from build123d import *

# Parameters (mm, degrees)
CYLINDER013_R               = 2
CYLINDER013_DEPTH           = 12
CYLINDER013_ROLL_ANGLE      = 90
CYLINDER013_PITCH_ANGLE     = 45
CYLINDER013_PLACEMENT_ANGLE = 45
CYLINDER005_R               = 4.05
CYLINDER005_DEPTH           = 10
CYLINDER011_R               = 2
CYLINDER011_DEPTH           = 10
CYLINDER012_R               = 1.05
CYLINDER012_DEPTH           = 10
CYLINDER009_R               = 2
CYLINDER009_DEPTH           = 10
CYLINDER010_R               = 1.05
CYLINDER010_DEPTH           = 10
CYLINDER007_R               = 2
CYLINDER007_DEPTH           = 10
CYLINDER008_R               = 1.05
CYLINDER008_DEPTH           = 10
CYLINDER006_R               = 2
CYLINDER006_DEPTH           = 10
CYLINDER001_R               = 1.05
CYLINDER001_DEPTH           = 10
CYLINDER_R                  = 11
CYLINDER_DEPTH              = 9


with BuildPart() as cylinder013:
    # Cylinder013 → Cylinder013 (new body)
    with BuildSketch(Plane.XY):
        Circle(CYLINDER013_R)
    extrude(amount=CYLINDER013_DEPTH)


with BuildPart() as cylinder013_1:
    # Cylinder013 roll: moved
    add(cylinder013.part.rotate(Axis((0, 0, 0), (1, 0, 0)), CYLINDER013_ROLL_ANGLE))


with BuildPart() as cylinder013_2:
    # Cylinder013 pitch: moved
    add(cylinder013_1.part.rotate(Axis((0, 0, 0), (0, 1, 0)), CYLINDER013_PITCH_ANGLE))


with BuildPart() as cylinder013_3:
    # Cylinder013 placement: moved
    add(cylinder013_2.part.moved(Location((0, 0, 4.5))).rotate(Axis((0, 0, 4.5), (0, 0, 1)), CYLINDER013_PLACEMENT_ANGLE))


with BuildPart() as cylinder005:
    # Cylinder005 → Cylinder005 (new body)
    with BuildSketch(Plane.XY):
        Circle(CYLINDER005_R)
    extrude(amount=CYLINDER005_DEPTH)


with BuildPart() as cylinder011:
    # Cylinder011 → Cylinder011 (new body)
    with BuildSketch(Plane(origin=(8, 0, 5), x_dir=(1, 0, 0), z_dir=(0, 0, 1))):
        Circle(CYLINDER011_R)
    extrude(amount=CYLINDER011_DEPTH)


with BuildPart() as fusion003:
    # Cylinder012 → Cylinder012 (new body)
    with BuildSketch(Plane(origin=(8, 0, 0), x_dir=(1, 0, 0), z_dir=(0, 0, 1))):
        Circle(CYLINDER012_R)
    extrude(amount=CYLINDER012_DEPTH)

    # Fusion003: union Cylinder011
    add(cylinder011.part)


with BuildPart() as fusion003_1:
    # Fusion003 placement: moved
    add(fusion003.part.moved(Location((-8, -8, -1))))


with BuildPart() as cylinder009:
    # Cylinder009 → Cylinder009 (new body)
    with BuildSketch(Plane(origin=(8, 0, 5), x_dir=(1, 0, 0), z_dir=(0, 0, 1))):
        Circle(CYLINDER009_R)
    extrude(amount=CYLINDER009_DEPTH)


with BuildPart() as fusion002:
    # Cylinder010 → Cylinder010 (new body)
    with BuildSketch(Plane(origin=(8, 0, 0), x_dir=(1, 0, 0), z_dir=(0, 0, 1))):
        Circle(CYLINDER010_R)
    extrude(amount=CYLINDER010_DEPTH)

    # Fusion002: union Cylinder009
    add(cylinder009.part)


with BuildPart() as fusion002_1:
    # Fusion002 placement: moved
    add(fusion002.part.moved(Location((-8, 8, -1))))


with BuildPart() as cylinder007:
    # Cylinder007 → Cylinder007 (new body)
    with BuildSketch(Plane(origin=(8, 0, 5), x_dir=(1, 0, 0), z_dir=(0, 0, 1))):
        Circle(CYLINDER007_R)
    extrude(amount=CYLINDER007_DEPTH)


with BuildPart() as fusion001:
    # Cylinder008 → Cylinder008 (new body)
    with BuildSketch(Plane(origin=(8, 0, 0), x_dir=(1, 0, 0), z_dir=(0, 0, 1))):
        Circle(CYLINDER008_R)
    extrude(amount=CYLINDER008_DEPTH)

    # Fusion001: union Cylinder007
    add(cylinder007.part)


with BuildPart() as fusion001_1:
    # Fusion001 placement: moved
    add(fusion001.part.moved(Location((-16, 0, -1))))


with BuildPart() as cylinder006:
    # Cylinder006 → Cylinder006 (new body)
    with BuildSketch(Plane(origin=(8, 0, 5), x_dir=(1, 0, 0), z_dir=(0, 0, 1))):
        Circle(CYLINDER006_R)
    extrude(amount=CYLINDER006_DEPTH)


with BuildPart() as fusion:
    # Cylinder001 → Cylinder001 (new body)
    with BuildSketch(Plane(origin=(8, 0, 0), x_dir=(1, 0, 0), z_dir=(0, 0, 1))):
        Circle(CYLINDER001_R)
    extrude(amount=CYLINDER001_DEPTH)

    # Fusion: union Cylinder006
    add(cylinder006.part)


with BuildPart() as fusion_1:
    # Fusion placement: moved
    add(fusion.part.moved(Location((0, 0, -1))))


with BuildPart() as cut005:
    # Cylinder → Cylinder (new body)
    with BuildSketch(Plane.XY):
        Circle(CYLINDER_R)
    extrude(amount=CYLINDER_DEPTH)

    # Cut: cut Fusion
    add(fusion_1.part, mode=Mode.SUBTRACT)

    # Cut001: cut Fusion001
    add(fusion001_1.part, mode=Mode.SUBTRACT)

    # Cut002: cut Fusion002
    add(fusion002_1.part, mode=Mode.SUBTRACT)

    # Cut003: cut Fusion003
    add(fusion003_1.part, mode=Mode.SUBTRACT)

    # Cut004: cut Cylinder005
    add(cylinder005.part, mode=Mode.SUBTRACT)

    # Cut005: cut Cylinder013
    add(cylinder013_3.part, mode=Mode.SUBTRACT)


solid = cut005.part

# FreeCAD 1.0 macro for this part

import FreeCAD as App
import Part
import Sketcher

V = App.Vector

doc = App.newDocument("Part")
body = doc.addObject("PartDesign::Body", "Body")

# Sketch on XY plane
sketch1 = body.newObject("Sketcher::SketchObject", "Sketch")
sketch1.AttachmentSupport = (doc.getObject("XY_Plane"), [""])
sketch1.MapMode = "FlatFace"
sketch1.addGeometry(Part.Circle(V(0, 0, 0), V(0, 0, 1), 2), False)
sketch1.addConstraint(Sketcher.Constraint("Coincident", 0, 3, -1, 1))
sketch1.addConstraint(Sketcher.Constraint("Diameter", 0, 4.0))
pad1 = body.newObject("PartDesign::Pad", "Pad")
pad1.Profile = sketch1
pad1.Length = 12
body2 = doc.addObject("PartDesign::Body", "Body001")
doc.recompute()

body.Placement = App.Placement(V(0, 0, 0), App.Rotation(V(1, 0, 0), 90))
boolean = body2.newObject("PartDesign::Boolean", "Boolean")
boolean.Type = "Fuse"
boolean.addObjects([body])
body3 = doc.addObject("PartDesign::Body", "Body002")
doc.recompute()

body2.Placement = App.Placement(V(0, 0, 0), App.Rotation(V(0, 1, 0), 45))
boolean2 = body3.newObject("PartDesign::Boolean", "Boolean001")
boolean2.Type = "Fuse"
boolean2.addObjects([body2])
body4 = doc.addObject("PartDesign::Body", "Body003")
doc.recompute()

body3.Placement = App.Placement(V(0, 0, 4.5), App.Rotation(V(0, 0, 1), 45))
boolean3 = body4.newObject("PartDesign::Boolean", "Boolean002")
boolean3.Type = "Fuse"
boolean3.addObjects([body3])
body5 = doc.addObject("PartDesign::Body", "Body004")

# Sketch on XY plane
sketch2 = body5.newObject("Sketcher::SketchObject", "Sketch001")
sketch2.AttachmentSupport = (doc.getObject("XY_Plane004"), [""])
sketch2.MapMode = "FlatFace"
sketch2.addGeometry(Part.Circle(V(0, 0, 0), V(0, 0, 1), 4), False)
sketch2.addConstraint(Sketcher.Constraint("Coincident", 0, 3, -1, 1))
sketch2.addConstraint(Sketcher.Constraint("Diameter", 0, 8.1))
pad2 = body5.newObject("PartDesign::Pad", "Pad001")
pad2.Profile = sketch2
pad2.Length = 10
body6 = doc.addObject("PartDesign::Body", "Body005")

# Sketch on XY plane
sketch3 = body6.newObject("Sketcher::SketchObject", "Sketch002")
sketch3.AttachmentSupport = (doc.getObject("XY_Plane005"), [""])
sketch3.MapMode = "FlatFace"
sketch3.AttachmentOffset = App.Placement(V(0, 0, 5), App.Rotation())
sketch3.addGeometry(Part.Circle(V(8, 0, 0), V(0, 0, 1), 2), False)
sketch3.addConstraint(Sketcher.Constraint("PointOnObject", 0, 3, -1))
sketch3.addConstraint(Sketcher.Constraint("Diameter", 0, 4.0))
sketch3.addConstraint(Sketcher.Constraint("DistanceX", -1, 1, 0, 3, 8.0))
pad3 = body6.newObject("PartDesign::Pad", "Pad002")
pad3.Profile = sketch3
pad3.Length = 10
body7 = doc.addObject("PartDesign::Body", "Body006")

# Sketch on XY plane
sketch4 = body7.newObject("Sketcher::SketchObject", "Sketch003")
sketch4.AttachmentSupport = (doc.getObject("XY_Plane006"), [""])
sketch4.MapMode = "FlatFace"
sketch4.addGeometry(Part.Circle(V(8, 0, 0), V(0, 0, 1), 1.1), False)
sketch4.addConstraint(Sketcher.Constraint("PointOnObject", 0, 3, -1))
sketch4.addConstraint(Sketcher.Constraint("Diameter", 0, 2.1))
sketch4.addConstraint(Sketcher.Constraint("DistanceX", -1, 1, 0, 3, 8.0))
pad4 = body7.newObject("PartDesign::Pad", "Pad003")
pad4.Profile = sketch4
pad4.Length = 10
doc.recompute()

boolean4 = body7.newObject("PartDesign::Boolean", "Boolean003")
boolean4.Type = "Fuse"
boolean4.addObjects([body6])
body8 = doc.addObject("PartDesign::Body", "Body007")
doc.recompute()

body7.Placement = App.Placement(V(-8, -8, -1), App.Rotation(V(0, 0, 1), 0))
boolean5 = body8.newObject("PartDesign::Boolean", "Boolean004")
boolean5.Type = "Fuse"
boolean5.addObjects([body7])
body9 = doc.addObject("PartDesign::Body", "Body008")

# Sketch on XY plane
sketch5 = body9.newObject("Sketcher::SketchObject", "Sketch004")
sketch5.AttachmentSupport = (doc.getObject("XY_Plane008"), [""])
sketch5.MapMode = "FlatFace"
sketch5.AttachmentOffset = App.Placement(V(0, 0, 5), App.Rotation())
sketch5.addGeometry(Part.Circle(V(8, 0, 0), V(0, 0, 1), 2), False)
sketch5.addConstraint(Sketcher.Constraint("PointOnObject", 0, 3, -1))
sketch5.addConstraint(Sketcher.Constraint("Diameter", 0, 4.0))
sketch5.addConstraint(Sketcher.Constraint("DistanceX", -1, 1, 0, 3, 8.0))
pad5 = body9.newObject("PartDesign::Pad", "Pad004")
pad5.Profile = sketch5
pad5.Length = 10
body10 = doc.addObject("PartDesign::Body", "Body009")

# Sketch on XY plane
sketch6 = body10.newObject("Sketcher::SketchObject", "Sketch005")
sketch6.AttachmentSupport = (doc.getObject("XY_Plane009"), [""])
sketch6.MapMode = "FlatFace"
sketch6.addGeometry(Part.Circle(V(8, 0, 0), V(0, 0, 1), 1.1), False)
sketch6.addConstraint(Sketcher.Constraint("PointOnObject", 0, 3, -1))
sketch6.addConstraint(Sketcher.Constraint("Diameter", 0, 2.1))
sketch6.addConstraint(Sketcher.Constraint("DistanceX", -1, 1, 0, 3, 8.0))
pad6 = body10.newObject("PartDesign::Pad", "Pad005")
pad6.Profile = sketch6
pad6.Length = 10
doc.recompute()

boolean6 = body10.newObject("PartDesign::Boolean", "Boolean005")
boolean6.Type = "Fuse"
boolean6.addObjects([body9])
body11 = doc.addObject("PartDesign::Body", "Body010")
doc.recompute()

body10.Placement = App.Placement(V(-8, 8, -1), App.Rotation(V(0, 0, 1), 0))
boolean7 = body11.newObject("PartDesign::Boolean", "Boolean006")
boolean7.Type = "Fuse"
boolean7.addObjects([body10])
body12 = doc.addObject("PartDesign::Body", "Body011")

# Sketch on XY plane
sketch7 = body12.newObject("Sketcher::SketchObject", "Sketch006")
sketch7.AttachmentSupport = (doc.getObject("XY_Plane011"), [""])
sketch7.MapMode = "FlatFace"
sketch7.AttachmentOffset = App.Placement(V(0, 0, 5), App.Rotation())
sketch7.addGeometry(Part.Circle(V(8, 0, 0), V(0, 0, 1), 2), False)
sketch7.addConstraint(Sketcher.Constraint("PointOnObject", 0, 3, -1))
sketch7.addConstraint(Sketcher.Constraint("Diameter", 0, 4.0))
sketch7.addConstraint(Sketcher.Constraint("DistanceX", -1, 1, 0, 3, 8.0))
pad7 = body12.newObject("PartDesign::Pad", "Pad006")
pad7.Profile = sketch7
pad7.Length = 10
body13 = doc.addObject("PartDesign::Body", "Body012")

# Sketch on XY plane
sketch8 = body13.newObject("Sketcher::SketchObject", "Sketch007")
sketch8.AttachmentSupport = (doc.getObject("XY_Plane012"), [""])
sketch8.MapMode = "FlatFace"
sketch8.addGeometry(Part.Circle(V(8, 0, 0), V(0, 0, 1), 1.1), False)
sketch8.addConstraint(Sketcher.Constraint("PointOnObject", 0, 3, -1))
sketch8.addConstraint(Sketcher.Constraint("Diameter", 0, 2.1))
sketch8.addConstraint(Sketcher.Constraint("DistanceX", -1, 1, 0, 3, 8.0))
pad8 = body13.newObject("PartDesign::Pad", "Pad007")
pad8.Profile = sketch8
pad8.Length = 10
doc.recompute()

boolean8 = body13.newObject("PartDesign::Boolean", "Boolean007")
boolean8.Type = "Fuse"
boolean8.addObjects([body12])
body14 = doc.addObject("PartDesign::Body", "Body013")
doc.recompute()

body13.Placement = App.Placement(V(-16, 0, -1), App.Rotation(V(0, 0, 1), 0))
boolean9 = body14.newObject("PartDesign::Boolean", "Boolean008")
boolean9.Type = "Fuse"
boolean9.addObjects([body13])
body15 = doc.addObject("PartDesign::Body", "Body014")

# Sketch on XY plane
sketch9 = body15.newObject("Sketcher::SketchObject", "Sketch008")
sketch9.AttachmentSupport = (doc.getObject("XY_Plane014"), [""])
sketch9.MapMode = "FlatFace"
sketch9.AttachmentOffset = App.Placement(V(0, 0, 5), App.Rotation())
sketch9.addGeometry(Part.Circle(V(8, 0, 0), V(0, 0, 1), 2), False)
sketch9.addConstraint(Sketcher.Constraint("PointOnObject", 0, 3, -1))
sketch9.addConstraint(Sketcher.Constraint("Diameter", 0, 4.0))
sketch9.addConstraint(Sketcher.Constraint("DistanceX", -1, 1, 0, 3, 8.0))
pad9 = body15.newObject("PartDesign::Pad", "Pad008")
pad9.Profile = sketch9
pad9.Length = 10
body16 = doc.addObject("PartDesign::Body", "Body015")

# Sketch on XY plane
sketch10 = body16.newObject("Sketcher::SketchObject", "Sketch009")
sketch10.AttachmentSupport = (doc.getObject("XY_Plane015"), [""])
sketch10.MapMode = "FlatFace"
sketch10.addGeometry(Part.Circle(V(8, 0, 0), V(0, 0, 1), 1.1), False)
sketch10.addConstraint(Sketcher.Constraint("PointOnObject", 0, 3, -1))
sketch10.addConstraint(Sketcher.Constraint("Diameter", 0, 2.1))
sketch10.addConstraint(Sketcher.Constraint("DistanceX", -1, 1, 0, 3, 8.0))
pad10 = body16.newObject("PartDesign::Pad", "Pad009")
pad10.Profile = sketch10
pad10.Length = 10
doc.recompute()

boolean10 = body16.newObject("PartDesign::Boolean", "Boolean009")
boolean10.Type = "Fuse"
boolean10.addObjects([body15])
body17 = doc.addObject("PartDesign::Body", "Body016")
doc.recompute()

body16.Placement = App.Placement(V(0, 0, -1), App.Rotation(V(0, 0, 1), 0))
boolean11 = body17.newObject("PartDesign::Boolean", "Boolean010")
boolean11.Type = "Fuse"
boolean11.addObjects([body16])
body18 = doc.addObject("PartDesign::Body", "Body017")

# Sketch on XY plane
sketch11 = body18.newObject("Sketcher::SketchObject", "Sketch010")
sketch11.AttachmentSupport = (doc.getObject("XY_Plane017"), [""])
sketch11.MapMode = "FlatFace"
sketch11.addGeometry(Part.Circle(V(0, 0, 0), V(0, 0, 1), 11), False)
sketch11.addConstraint(Sketcher.Constraint("Coincident", 0, 3, -1, 1))
sketch11.addConstraint(Sketcher.Constraint("Diameter", 0, 22.0))
pad11 = body18.newObject("PartDesign::Pad", "Pad010")
pad11.Profile = sketch11
pad11.Length = 9
doc.recompute()

boolean12 = body18.newObject("PartDesign::Boolean", "Boolean011")
boolean12.Type = "Cut"
boolean12.addObjects([body17])
doc.recompute()

boolean13 = body18.newObject("PartDesign::Boolean", "Boolean012")
boolean13.Type = "Cut"
boolean13.addObjects([body14])
doc.recompute()

boolean14 = body18.newObject("PartDesign::Boolean", "Boolean013")
boolean14.Type = "Cut"
boolean14.addObjects([body11])
doc.recompute()

boolean15 = body18.newObject("PartDesign::Boolean", "Boolean014")
boolean15.Type = "Cut"
boolean15.addObjects([body8])
doc.recompute()

boolean16 = body18.newObject("PartDesign::Boolean", "Boolean015")
boolean16.Type = "Cut"
boolean16.addObjects([body5])
doc.recompute()

boolean17 = body18.newObject("PartDesign::Boolean", "Boolean016")
boolean17.Type = "Cut"
boolean17.addObjects([body4])

doc.recompute()
